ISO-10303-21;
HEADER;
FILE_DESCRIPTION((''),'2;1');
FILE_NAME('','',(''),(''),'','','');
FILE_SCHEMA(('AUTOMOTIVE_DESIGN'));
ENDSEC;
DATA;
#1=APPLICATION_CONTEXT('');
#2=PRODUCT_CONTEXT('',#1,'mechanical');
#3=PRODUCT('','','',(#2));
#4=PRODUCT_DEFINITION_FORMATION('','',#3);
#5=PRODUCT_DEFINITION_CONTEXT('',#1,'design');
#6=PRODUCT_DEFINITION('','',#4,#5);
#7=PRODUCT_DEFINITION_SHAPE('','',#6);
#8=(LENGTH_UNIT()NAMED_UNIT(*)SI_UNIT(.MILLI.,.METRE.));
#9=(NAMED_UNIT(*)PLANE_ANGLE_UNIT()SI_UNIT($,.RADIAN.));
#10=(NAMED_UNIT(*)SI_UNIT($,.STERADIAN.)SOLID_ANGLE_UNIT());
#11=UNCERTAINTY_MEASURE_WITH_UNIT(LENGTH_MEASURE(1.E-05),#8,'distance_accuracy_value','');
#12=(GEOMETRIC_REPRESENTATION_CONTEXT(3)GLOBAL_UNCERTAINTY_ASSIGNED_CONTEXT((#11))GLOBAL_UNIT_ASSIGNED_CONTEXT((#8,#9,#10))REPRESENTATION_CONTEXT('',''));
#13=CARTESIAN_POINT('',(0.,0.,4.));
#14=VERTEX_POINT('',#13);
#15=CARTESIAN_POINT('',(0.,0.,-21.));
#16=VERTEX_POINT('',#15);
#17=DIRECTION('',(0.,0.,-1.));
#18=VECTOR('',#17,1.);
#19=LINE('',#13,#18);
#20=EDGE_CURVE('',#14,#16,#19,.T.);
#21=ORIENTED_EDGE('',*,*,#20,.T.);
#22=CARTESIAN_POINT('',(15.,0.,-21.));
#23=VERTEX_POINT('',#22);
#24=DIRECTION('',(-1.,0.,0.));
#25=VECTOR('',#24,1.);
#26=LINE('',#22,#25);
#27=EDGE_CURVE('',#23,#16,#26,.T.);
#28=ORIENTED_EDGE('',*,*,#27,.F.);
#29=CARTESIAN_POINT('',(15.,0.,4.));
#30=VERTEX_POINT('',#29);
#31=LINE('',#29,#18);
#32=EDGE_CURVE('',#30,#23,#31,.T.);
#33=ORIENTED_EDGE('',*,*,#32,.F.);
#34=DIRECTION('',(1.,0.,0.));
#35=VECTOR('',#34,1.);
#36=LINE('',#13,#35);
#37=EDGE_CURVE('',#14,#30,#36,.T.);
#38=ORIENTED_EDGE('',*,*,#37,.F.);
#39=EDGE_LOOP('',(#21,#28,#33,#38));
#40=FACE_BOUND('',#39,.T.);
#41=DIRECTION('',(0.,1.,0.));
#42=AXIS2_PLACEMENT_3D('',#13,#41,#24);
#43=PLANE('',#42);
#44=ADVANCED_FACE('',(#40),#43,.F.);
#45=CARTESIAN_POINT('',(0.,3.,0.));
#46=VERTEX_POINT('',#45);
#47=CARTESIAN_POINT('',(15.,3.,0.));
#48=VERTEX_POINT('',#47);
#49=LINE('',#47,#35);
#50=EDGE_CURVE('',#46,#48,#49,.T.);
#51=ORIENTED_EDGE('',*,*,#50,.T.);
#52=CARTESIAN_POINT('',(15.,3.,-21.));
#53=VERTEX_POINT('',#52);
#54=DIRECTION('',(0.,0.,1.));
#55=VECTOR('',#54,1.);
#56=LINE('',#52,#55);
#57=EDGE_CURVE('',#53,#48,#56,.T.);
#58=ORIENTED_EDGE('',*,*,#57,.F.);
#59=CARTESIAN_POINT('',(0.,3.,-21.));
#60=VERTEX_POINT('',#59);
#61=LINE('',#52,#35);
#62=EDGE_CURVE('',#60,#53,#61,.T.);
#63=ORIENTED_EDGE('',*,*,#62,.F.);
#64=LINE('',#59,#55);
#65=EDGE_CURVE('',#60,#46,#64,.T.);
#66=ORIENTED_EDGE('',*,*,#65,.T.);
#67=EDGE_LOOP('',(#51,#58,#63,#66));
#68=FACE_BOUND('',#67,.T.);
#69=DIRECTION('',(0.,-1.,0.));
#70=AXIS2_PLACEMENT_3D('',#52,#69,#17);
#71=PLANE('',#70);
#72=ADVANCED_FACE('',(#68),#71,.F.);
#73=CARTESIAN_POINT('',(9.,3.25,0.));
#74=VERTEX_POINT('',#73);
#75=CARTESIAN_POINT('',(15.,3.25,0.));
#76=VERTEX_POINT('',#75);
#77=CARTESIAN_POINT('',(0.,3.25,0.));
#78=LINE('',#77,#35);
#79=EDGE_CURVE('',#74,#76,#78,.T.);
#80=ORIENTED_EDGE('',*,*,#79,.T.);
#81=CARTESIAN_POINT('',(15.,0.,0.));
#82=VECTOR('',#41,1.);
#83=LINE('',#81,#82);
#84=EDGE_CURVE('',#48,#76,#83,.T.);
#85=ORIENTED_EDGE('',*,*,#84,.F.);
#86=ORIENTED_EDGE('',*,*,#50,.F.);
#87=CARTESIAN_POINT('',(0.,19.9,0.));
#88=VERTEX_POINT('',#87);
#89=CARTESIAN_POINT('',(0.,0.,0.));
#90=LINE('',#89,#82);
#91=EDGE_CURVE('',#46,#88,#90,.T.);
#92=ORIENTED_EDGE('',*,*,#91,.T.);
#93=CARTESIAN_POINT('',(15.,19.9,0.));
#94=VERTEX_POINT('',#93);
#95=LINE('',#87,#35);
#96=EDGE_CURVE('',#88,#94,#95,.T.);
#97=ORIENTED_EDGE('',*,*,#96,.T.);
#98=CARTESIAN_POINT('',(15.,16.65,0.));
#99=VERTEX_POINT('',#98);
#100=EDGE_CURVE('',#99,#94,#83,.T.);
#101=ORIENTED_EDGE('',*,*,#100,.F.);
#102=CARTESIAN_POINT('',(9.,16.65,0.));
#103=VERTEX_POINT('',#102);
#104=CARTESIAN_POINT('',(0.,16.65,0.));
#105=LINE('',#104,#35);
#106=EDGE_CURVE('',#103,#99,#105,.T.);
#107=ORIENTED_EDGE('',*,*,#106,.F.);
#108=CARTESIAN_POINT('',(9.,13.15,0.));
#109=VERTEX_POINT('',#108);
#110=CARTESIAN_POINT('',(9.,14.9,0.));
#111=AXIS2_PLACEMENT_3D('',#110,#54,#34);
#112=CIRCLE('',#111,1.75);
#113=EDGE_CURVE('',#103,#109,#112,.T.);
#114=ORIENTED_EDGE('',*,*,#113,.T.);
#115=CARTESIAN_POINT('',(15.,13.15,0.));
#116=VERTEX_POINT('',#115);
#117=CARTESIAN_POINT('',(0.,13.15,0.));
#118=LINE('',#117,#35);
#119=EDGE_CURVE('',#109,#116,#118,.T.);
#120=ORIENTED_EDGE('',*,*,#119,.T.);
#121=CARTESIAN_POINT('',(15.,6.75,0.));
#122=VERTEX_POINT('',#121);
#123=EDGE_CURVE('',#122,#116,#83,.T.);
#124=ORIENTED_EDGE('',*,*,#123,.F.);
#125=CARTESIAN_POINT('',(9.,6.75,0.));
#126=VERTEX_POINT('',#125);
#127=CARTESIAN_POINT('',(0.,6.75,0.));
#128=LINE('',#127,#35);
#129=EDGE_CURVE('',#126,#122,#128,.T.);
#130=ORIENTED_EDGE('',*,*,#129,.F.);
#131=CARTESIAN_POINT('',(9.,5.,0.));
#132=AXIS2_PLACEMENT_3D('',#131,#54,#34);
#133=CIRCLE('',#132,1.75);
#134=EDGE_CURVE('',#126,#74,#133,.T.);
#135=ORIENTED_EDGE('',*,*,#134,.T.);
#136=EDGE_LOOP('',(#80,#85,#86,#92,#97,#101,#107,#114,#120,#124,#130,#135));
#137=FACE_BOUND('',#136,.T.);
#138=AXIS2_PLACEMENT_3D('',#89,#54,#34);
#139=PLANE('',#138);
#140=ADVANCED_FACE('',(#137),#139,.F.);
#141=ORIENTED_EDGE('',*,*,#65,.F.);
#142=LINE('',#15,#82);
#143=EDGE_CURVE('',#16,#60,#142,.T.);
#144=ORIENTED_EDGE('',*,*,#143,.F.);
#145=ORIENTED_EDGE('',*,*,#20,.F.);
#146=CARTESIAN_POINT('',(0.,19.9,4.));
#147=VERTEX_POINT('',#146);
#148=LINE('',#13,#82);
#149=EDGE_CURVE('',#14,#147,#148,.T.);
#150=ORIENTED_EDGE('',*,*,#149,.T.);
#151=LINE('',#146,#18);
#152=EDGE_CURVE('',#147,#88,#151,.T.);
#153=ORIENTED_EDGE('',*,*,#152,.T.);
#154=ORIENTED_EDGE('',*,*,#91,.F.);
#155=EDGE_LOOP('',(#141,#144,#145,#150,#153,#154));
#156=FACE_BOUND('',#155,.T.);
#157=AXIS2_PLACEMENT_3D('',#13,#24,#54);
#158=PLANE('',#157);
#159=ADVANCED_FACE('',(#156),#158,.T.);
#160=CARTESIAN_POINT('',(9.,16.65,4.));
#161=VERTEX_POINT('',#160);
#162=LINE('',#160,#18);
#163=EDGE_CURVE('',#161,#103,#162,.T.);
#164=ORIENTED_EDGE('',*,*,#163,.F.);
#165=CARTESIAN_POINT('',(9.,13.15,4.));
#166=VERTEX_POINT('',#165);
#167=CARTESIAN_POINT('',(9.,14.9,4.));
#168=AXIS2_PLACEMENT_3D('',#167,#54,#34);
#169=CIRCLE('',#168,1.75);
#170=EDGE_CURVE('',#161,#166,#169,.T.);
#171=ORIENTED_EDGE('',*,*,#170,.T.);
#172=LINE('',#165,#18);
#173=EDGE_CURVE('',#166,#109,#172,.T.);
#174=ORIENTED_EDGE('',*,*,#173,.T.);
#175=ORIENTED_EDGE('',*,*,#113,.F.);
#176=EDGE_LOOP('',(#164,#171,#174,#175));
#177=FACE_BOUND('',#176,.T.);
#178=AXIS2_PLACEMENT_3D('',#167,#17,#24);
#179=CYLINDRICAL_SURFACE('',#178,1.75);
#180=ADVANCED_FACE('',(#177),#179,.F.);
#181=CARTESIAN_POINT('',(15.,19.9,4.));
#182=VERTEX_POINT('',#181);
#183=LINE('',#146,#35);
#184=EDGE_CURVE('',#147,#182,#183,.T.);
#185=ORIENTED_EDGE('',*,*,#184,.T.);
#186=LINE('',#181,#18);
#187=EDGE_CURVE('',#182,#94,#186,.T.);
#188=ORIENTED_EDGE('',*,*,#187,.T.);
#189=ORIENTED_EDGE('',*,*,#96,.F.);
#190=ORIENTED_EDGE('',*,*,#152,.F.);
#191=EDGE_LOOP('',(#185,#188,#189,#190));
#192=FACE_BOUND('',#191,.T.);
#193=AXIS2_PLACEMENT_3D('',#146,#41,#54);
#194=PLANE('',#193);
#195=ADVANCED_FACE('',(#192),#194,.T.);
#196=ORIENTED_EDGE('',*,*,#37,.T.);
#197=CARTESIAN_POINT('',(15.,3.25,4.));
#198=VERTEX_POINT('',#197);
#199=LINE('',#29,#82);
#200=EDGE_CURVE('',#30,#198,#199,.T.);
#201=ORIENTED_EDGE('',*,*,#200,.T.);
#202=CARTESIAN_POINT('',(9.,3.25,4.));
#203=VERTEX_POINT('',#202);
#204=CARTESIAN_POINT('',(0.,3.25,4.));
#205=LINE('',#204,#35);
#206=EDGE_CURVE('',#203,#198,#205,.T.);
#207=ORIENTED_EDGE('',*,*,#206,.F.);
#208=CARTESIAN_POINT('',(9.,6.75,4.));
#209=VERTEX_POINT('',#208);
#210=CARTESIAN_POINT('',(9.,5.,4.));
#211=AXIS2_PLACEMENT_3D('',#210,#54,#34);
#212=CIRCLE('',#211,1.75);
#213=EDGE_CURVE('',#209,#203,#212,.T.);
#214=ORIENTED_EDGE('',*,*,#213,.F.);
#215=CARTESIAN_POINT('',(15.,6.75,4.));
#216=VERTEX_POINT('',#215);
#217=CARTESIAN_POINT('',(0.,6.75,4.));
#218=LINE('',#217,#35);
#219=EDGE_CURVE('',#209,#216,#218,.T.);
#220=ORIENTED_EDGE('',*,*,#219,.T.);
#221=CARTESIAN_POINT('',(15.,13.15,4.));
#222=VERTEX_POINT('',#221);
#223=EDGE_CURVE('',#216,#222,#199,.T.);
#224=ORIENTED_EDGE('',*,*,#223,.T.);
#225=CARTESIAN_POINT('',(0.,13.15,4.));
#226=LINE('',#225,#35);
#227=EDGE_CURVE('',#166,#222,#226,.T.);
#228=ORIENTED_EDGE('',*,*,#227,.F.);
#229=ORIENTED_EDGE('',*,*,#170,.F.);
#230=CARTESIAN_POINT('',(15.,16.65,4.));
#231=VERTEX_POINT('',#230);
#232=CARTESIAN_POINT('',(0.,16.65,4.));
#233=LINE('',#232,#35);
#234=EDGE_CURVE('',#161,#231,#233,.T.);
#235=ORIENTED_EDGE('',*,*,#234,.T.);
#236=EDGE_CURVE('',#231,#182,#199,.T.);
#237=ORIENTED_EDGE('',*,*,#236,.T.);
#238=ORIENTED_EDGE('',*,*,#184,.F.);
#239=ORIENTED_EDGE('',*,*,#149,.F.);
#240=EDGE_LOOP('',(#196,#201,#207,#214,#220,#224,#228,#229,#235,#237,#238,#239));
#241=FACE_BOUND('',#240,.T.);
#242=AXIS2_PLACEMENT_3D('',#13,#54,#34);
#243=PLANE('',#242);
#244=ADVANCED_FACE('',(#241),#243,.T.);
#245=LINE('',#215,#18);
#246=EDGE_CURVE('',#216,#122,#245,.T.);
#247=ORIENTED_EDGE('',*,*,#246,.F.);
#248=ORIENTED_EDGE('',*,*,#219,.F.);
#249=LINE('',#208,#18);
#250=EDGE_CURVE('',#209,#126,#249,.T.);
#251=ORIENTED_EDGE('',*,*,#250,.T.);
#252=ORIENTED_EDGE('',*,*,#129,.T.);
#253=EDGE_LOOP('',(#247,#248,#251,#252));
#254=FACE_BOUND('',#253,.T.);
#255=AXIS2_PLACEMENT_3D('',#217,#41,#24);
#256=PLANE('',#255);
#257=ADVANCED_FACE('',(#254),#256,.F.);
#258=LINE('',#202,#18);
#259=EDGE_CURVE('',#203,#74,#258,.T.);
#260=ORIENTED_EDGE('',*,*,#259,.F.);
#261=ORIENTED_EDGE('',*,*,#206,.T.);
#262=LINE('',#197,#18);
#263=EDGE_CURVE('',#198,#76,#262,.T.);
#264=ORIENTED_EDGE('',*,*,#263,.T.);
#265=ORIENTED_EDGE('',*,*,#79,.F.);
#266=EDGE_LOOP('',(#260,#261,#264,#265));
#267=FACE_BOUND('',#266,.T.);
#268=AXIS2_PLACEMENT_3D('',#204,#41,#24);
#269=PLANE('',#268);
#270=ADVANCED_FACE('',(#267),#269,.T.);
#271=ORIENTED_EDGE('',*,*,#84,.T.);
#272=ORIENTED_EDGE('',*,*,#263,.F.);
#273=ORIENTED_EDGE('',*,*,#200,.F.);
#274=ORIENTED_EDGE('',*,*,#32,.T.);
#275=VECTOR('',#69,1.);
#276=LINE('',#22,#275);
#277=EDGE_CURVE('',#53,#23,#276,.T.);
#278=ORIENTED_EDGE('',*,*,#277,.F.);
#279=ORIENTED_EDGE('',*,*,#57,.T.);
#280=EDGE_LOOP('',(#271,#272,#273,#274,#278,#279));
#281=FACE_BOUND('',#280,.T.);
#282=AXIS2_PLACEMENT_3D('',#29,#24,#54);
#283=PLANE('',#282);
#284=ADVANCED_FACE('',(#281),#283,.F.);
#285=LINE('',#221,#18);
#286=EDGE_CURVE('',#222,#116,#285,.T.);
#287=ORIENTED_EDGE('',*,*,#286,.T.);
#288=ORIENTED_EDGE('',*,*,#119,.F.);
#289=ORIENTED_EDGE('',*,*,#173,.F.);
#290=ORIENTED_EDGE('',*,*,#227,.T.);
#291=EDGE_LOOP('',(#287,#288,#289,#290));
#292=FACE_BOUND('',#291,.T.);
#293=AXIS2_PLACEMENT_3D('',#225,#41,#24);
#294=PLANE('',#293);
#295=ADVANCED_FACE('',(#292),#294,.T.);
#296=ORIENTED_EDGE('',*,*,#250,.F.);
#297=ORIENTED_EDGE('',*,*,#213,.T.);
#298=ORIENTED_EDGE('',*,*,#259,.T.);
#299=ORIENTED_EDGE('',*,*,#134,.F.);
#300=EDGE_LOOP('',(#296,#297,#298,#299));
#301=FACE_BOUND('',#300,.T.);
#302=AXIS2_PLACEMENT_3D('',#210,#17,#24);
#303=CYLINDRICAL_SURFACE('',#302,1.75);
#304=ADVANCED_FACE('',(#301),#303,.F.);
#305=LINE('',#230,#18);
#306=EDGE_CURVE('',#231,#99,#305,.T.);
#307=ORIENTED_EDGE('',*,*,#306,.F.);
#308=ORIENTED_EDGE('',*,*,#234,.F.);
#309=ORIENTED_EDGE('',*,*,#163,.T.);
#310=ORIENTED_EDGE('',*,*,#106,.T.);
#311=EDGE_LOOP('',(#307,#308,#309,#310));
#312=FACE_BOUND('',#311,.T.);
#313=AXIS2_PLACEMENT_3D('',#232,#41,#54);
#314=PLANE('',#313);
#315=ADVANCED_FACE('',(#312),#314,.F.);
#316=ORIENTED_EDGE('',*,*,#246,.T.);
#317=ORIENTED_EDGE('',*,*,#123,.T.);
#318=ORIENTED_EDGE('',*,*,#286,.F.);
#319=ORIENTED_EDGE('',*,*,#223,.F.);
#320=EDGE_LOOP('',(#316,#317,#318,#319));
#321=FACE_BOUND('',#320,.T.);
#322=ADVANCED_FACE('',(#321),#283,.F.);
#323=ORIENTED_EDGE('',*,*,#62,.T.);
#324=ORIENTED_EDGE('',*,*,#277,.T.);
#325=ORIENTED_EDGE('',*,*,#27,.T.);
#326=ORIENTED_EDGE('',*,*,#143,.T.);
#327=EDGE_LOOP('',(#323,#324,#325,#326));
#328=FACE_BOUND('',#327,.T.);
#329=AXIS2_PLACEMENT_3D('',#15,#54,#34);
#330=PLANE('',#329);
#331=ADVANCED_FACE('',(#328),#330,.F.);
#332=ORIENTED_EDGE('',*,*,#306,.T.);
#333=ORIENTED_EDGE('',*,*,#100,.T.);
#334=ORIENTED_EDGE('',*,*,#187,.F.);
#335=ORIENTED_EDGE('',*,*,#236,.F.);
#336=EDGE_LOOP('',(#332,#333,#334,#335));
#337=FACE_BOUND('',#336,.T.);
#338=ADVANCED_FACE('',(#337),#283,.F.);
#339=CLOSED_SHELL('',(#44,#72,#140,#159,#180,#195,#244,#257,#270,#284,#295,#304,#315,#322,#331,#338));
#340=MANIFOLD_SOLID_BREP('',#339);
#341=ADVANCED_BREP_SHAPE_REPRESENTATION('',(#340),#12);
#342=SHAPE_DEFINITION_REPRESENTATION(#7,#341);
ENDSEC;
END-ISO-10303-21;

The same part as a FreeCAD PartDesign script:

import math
import FreeCAD as App
import Part
import Sketcher

doc = App.newDocument("Part")
body = doc.addObject("PartDesign::Body", "Body")

# Sketch on XY plane
sketch1 = body.newObject("Sketcher::SketchObject", "Sketch")
sketch1.AttachmentSupport = (doc.getObject("XY_Plane"), [""])
sketch1.MapMode = "FlatFace"
sketch1.addGeometry(Part.LineSegment(App.Vector(0, 19.9, 0), App.Vector(0, 0, 0)), False)
sketch1.addGeometry(Part.LineSegment(App.Vector(0, 0, 0), App.Vector(15, 0, 0)), False)
sketch1.addGeometry(Part.LineSegment(App.Vector(15, 0, 0), App.Vector(15, 3.2, 0)), False)
sketch1.addGeometry(Part.LineSegment(App.Vector(15, 3.2, 0), App.Vector(9, 3.2, 0)), False)
sketch1.addGeometry(Part.ArcOfCircle(Part.Circle(App.Vector(9, 5, 0), App.Vector(0, 0, 1), 1.8), math.radians(90), math.radians(270)), False)
sketch1.addGeometry(Part.LineSegment(App.Vector(9, 6.8, 0), App.Vector(15, 6.8, 0)), False)
sketch1.addGeometry(Part.LineSegment(App.Vector(15, 6.8, 0), App.Vector(15, 13.2, 0)), False)
sketch1.addGeometry(Part.LineSegment(App.Vector(15, 13.2, 0), App.Vector(9, 13.2, 0)), False)
sketch1.addGeometry(Part.ArcOfCircle(Part.Circle(App.Vector(9, 14.9, 0), App.Vector(0, 0, 1), 1.8), math.radians(90), math.radians(270)), False)
sketch1.addGeometry(Part.LineSegment(App.Vector(9, 16.6, 0), App.Vector(15, 16.6, 0)), False)
sketch1.addGeometry(Part.LineSegment(App.Vector(15, 16.6, 0), App.Vector(15, 19.9, 0)), False)
sketch1.addGeometry(Part.LineSegment(App.Vector(15, 19.9, 0), App.Vector(0, 19.9, 0)), False)
sketch1.addConstraint(Sketcher.Constraint("Coincident", 0, 2, 1, 1))
sketch1.addConstraint(Sketcher.Constraint("Coincident", 1, 2, 2, 1))
sketch1.addConstraint(Sketcher.Constraint("Coincident", 2, 2, 3, 1))
sketch1.addConstraint(Sketcher.Constraint("Tangent", 3, 2, 4, 2))
sketch1.addConstraint(Sketcher.Constraint("Tangent", 4, 1, 5, 1))
sketch1.addConstraint(Sketcher.Constraint("Coincident", 5, 2, 6, 1))
sketch1.addConstraint(Sketcher.Constraint("Coincident", 6, 2, 7, 1))
sketch1.addConstraint(Sketcher.Constraint("Tangent", 7, 2, 8, 2))
sketch1.addConstraint(Sketcher.Constraint("Tangent", 8, 1, 9, 1))
sketch1.addConstraint(Sketcher.Constraint("Coincident", 9, 2, 10, 1))
sketch1.addConstraint(Sketcher.Constraint("Coincident", 10, 2, 11, 1))
sketch1.addConstraint(Sketcher.Constraint("Coincident", 11, 2, 0, 1))
sketch1.addConstraint(Sketcher.Constraint("Vertical", 0))
sketch1.addConstraint(Sketcher.Constraint("Horizontal", 1))
sketch1.addConstraint(Sketcher.Constraint("Vertical", 2))
sketch1.addConstraint(Sketcher.Constraint("Horizontal", 3))
sketch1.addConstraint(Sketcher.Constraint("Horizontal", 5))
sketch1.addConstraint(Sketcher.Constraint("Vertical", 6))
sketch1.addConstraint(Sketcher.Constraint("Horizontal", 7))
sketch1.addConstraint(Sketcher.Constraint("Horizontal", 9))
sketch1.addConstraint(Sketcher.Constraint("Vertical", 10))
sketch1.addConstraint(Sketcher.Constraint("Horizontal", 11))
sketch1.addConstraint(Sketcher.Constraint("Coincident", 0, 2, -1, 1))
sketch1.addConstraint(Sketcher.Constraint("Equal", 4, 8))
sketch1.addConstraint(Sketcher.Constraint("Vertical", 4, 3, 8, 3))
sketch1.addConstraint(Sketcher.Constraint("Vertical", 2, 2, 5, 2))
sketch1.addConstraint(Sketcher.Constraint("Vertical", 6, 2, 9, 2))
sketch1.addConstraint(Sketcher.Constraint("Equal", 2, 10))
sketch1.addConstraint(Sketcher.Constraint("DistanceX", 1, 1, 1, 2, 15.0))
sketch1.addConstraint(Sketcher.Constraint("DistanceX", 3, 2, 3, 1, 6.0))
sketch1.addConstraint(Sketcher.Constraint("Radius", 4, 1.75))
sketch1.addConstraint(Sketcher.Constraint("DistanceY", 0, 2, 0, 1, 19.9))
sketch1.addConstraint(Sketcher.Constraint("DistanceY", 6, 1, 6, 2, 6.4))
pad1 = body.newObject("PartDesign::Pad", "Pad")
pad1.Profile = sketch1
pad1.Length = 4

# Sketch on XY plane
sketch2 = body.newObject("Sketcher::SketchObject", "Sketch001")
sketch2.AttachmentSupport = (doc.getObject("XY_Plane"), [""])
sketch2.MapMode = "FlatFace"
sketch2.addGeometry(Part.LineSegment(App.Vector(15, 3, 0), App.Vector(15, 0, 0)), False)
sketch2.addGeometry(Part.LineSegment(App.Vector(15, 0, 0), App.Vector(0, 0, 0)), False)
sketch2.addGeometry(Part.LineSegment(App.Vector(0, 0, 0), App.Vector(0, 3, 0)), False)
sketch2.addGeometry(Part.LineSegment(App.Vector(0, 3, 0), App.Vector(15, 3, 0)), False)
sketch2.addConstraint(Sketcher.Constraint("Coincident", 0, 2, 1, 1))
sketch2.addConstraint(Sketcher.Constraint("Coincident", 1, 2, 2, 1))
sketch2.addConstraint(Sketcher.Constraint("Coincident", 2, 2, 3, 1))
sketch2.addConstraint(Sketcher.Constraint("Coincident", 3, 2, 0, 1))
sketch2.addConstraint(Sketcher.Constraint("Vertical", 0))
sketch2.addConstraint(Sketcher.Constraint("Horizontal", 1))
sketch2.addConstraint(Sketcher.Constraint("Vertical", 2))
sketch2.addConstraint(Sketcher.Constraint("Horizontal", 3))
sketch2.addConstraint(Sketcher.Constraint("Coincident", 1, 2, -1, 1))
sketch2.addConstraint(Sketcher.Constraint("DistanceX", 1, 2, 1, 1, 15.0))
sketch2.addConstraint(Sketcher.Constraint("DistanceY", 0, 2, 0, 1, 3.0))
pad2 = body.newObject("PartDesign::Pad", "Pad001")
pad2.Profile = sketch2
pad2.Length = 21
pad2.Reversed = True

doc.recompute()
